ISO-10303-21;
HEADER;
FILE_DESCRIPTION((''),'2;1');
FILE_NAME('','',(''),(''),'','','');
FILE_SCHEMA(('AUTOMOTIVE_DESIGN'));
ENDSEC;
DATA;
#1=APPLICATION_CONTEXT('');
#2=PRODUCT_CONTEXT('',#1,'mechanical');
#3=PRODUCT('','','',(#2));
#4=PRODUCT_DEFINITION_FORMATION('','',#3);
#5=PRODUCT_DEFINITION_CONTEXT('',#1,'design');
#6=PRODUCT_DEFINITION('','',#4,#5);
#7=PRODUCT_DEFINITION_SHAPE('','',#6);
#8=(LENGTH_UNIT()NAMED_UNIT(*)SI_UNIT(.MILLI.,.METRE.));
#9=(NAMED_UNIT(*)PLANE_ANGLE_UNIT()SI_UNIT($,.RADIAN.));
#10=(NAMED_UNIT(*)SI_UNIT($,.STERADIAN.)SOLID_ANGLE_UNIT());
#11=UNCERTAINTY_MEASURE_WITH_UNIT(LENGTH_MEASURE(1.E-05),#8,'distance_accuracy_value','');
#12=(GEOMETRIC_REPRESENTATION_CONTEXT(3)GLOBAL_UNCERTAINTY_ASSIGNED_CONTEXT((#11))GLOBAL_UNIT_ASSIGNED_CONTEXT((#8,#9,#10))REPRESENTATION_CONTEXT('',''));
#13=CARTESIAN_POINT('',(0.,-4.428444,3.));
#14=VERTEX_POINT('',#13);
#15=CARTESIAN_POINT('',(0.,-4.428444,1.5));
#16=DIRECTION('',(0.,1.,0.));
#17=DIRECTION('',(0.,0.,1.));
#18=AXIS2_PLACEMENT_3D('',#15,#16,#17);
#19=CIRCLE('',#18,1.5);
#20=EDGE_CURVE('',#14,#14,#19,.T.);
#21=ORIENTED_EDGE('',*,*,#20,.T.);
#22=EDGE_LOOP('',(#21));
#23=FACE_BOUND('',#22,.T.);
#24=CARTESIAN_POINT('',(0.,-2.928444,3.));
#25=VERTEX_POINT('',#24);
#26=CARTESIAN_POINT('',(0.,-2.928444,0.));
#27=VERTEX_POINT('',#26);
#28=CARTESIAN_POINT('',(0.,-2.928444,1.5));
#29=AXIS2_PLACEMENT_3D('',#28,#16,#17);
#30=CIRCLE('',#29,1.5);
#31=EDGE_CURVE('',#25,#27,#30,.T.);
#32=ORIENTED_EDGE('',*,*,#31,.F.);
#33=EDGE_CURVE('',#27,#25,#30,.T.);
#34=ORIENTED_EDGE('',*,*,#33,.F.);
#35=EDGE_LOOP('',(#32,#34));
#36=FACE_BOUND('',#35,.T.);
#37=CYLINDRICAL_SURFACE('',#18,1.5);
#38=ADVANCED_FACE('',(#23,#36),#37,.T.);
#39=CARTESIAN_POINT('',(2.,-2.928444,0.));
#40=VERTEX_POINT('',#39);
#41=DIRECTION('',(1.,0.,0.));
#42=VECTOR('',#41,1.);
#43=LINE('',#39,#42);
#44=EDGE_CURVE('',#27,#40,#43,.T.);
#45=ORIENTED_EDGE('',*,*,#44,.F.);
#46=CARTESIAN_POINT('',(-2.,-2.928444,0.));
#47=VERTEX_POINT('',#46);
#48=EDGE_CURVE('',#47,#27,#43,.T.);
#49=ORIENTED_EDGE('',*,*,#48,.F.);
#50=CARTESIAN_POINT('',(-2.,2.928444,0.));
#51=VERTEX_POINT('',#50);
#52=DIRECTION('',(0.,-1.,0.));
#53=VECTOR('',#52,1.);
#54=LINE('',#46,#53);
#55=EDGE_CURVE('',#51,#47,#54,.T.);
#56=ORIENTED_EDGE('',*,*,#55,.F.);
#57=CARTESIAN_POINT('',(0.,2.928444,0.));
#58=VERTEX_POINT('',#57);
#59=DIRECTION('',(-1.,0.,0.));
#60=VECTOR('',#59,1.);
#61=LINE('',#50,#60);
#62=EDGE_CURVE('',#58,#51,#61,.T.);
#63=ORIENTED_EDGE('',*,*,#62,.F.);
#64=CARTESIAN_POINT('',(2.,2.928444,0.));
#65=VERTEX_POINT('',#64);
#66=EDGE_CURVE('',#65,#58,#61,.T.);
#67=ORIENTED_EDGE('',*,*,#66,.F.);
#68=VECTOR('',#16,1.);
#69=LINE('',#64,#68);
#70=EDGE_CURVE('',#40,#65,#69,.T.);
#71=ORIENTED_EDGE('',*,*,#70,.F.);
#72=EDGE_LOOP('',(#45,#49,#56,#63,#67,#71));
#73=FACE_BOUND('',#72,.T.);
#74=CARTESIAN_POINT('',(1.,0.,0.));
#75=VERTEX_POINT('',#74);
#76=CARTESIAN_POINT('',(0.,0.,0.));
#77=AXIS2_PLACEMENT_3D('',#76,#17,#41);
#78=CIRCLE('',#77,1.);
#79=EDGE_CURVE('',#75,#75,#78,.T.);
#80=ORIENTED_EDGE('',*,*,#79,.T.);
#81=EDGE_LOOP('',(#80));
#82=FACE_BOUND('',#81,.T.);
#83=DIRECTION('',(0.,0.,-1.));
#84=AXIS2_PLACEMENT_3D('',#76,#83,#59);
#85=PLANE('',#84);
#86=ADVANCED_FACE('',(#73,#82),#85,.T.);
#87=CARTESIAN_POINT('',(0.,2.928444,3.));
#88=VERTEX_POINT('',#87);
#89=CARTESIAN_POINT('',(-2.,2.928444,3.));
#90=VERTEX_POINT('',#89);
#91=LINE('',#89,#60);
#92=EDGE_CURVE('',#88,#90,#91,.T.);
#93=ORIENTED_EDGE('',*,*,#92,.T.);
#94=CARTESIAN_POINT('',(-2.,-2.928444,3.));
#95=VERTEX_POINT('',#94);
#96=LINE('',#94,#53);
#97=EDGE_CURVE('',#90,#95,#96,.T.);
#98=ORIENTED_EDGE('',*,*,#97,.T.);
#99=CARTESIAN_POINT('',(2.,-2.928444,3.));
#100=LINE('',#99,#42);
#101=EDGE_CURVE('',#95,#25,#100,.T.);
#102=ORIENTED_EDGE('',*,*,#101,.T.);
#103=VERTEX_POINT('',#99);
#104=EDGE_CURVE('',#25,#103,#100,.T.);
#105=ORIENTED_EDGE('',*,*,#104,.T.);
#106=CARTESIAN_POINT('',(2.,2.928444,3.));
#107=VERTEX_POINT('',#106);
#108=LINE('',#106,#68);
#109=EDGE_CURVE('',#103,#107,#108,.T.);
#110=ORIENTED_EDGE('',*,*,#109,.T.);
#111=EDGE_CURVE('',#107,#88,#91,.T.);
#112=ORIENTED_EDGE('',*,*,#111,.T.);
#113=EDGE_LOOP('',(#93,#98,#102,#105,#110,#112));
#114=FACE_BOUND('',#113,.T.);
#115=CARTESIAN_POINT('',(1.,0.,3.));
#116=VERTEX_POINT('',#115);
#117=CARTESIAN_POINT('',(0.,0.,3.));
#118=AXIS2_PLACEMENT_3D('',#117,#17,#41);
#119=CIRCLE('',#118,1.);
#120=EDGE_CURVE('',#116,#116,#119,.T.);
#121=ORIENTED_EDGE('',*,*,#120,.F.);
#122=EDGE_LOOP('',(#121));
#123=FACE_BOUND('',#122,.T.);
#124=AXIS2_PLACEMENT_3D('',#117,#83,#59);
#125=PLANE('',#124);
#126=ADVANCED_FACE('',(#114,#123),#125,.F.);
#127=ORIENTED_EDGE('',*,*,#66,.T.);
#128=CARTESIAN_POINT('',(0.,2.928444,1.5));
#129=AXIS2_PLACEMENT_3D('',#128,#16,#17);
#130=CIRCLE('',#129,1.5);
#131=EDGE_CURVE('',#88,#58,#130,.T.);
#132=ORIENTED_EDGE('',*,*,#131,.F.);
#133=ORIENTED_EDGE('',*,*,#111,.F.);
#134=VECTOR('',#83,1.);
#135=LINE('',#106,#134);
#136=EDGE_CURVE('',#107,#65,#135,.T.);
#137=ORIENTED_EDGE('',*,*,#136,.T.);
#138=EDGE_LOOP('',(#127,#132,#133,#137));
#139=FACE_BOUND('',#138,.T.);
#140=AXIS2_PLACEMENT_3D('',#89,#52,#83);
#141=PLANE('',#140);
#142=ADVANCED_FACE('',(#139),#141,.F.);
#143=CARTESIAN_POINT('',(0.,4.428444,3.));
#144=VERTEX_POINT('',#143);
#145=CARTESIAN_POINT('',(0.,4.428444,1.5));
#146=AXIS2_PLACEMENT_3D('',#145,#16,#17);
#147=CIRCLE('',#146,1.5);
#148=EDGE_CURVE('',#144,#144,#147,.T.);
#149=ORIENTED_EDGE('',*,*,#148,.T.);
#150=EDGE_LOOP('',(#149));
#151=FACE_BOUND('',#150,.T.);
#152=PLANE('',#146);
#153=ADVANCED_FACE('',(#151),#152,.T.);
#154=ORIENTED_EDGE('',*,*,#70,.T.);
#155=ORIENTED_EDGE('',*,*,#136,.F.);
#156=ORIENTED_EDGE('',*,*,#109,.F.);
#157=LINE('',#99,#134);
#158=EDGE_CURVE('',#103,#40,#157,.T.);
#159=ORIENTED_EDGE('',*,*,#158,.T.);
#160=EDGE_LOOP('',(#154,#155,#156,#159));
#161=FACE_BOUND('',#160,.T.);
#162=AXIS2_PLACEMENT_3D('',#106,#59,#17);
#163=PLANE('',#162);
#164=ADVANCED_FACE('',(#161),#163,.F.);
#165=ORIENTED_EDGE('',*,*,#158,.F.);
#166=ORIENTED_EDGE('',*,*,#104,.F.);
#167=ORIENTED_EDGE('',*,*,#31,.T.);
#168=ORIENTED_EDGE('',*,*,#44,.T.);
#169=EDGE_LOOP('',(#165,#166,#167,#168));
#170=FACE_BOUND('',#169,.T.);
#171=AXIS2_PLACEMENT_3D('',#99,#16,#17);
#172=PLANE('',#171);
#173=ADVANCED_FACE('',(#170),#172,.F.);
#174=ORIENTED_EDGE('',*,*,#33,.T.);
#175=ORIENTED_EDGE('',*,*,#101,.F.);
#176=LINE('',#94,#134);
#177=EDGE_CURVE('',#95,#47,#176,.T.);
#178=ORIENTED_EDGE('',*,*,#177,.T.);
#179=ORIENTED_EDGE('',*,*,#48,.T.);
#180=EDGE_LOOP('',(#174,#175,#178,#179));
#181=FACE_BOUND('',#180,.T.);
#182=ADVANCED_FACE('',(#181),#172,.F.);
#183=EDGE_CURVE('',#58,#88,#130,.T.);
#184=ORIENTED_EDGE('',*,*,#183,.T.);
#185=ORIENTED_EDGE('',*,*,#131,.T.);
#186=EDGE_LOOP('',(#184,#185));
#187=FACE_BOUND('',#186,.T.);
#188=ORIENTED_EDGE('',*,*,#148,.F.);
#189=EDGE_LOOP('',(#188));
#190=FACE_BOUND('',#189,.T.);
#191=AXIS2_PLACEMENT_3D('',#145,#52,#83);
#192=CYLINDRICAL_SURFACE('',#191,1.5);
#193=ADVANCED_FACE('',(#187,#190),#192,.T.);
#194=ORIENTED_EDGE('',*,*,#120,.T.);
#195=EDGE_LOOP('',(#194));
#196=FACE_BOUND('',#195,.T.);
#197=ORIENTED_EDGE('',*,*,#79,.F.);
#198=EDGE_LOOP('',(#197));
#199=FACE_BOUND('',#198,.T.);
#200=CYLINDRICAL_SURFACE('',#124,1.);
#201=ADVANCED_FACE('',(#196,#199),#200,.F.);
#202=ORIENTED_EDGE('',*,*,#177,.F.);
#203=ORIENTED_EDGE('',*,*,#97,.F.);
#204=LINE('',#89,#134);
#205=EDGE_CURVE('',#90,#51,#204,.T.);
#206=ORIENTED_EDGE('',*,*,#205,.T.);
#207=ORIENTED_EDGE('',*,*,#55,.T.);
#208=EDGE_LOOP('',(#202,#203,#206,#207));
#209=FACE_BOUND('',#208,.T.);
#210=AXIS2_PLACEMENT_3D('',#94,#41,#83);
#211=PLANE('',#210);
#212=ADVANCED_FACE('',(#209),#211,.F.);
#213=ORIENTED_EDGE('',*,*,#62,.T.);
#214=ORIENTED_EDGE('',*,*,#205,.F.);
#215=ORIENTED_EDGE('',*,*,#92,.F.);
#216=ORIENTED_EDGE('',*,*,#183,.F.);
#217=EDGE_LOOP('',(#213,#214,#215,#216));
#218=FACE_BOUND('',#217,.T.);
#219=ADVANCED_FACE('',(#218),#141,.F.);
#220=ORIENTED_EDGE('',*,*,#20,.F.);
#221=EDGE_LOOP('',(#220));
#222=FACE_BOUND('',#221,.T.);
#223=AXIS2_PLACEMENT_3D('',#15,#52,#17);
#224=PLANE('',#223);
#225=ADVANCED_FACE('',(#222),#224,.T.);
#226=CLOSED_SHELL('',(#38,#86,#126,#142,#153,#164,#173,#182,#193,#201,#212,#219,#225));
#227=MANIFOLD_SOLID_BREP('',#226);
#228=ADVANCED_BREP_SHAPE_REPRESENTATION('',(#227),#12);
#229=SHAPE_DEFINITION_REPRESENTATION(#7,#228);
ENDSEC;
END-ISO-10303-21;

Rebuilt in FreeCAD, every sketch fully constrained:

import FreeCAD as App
import Part
import Sketcher

V = App.Vector
Q = App.Units.Quantity

doc = App.newDocument("Part")
body = doc.addObject("PartDesign::Body", "Body")

sketch1 = body.newObject("Sketcher::SketchObject", "Sketch")
sketch1.AttachmentSupport = (doc.getObject("XY_Plane"), [""])
sketch1.MapMode = "FlatFace"
sketch1.addGeometry([
    Part.LineSegment(V(-2, 2.9, 0), V(-2, -2.9, 0)),
    Part.LineSegment(V(-2, -2.9, 0), V(2, -2.9, 0)),
    Part.LineSegment(V(2, -2.9, 0), V(2, 2.9, 0)),
    Part.LineSegment(V(2, 2.9, 0), V(-2, 2.9, 0)),
    Part.Circle(V(0, 0, 0), V(0, 0, 1), 1),
], False)
sketch1.addConstraint([
    Sketcher.Constraint("Coincident", 0, 2, 1, 1),
    Sketcher.Constraint("Coincident", 1, 2, 2, 1),
    Sketcher.Constraint("Coincident", 2, 2, 3, 1),
    Sketcher.Constraint("Coincident", 3, 2, 0, 1),
    Sketcher.Constraint("Vertical", 0),
    Sketcher.Constraint("Horizontal", 1),
    Sketcher.Constraint("Vertical", 2),
    Sketcher.Constraint("Horizontal", 3),
    Sketcher.Constraint("Coincident", 4, 3, -1, 1),
    Sketcher.Constraint("Symmetric", 0, 2, 2, 2, -1, 1),
    Sketcher.Constraint("Diameter", 4, Q("2 mm")),
    Sketcher.Constraint("DistanceX", 1, 1, 1, 2, Q("4 mm")),
    Sketcher.Constraint("DistanceY", 0, 2, 0, 1, Q("5.856889 mm")),
])
pad1 = body.newObject("PartDesign::Pad", "Pad")
pad1.Profile = sketch1
pad1.Length = 3

sketch2 = body.newObject("Sketcher::SketchObject", "Sketch001")
sketch2.AttachmentSupport = (doc.getObject("XZ_Plane"), [""])
sketch2.MapMode = "FlatFace"
sketch2.AttachmentOffset = App.Placement(V(0, 0, -2.928444), App.Rotation())
sketch2.addGeometry(Part.Circle(V(0, 1.5, 0), V(0, 0, 1), 1.5), False)
sketch2.addConstraint([
    Sketcher.Constraint("PointOnObject", 0, 3, -2),
    Sketcher.Constraint("Diameter", 0, Q("3 mm")),
    Sketcher.Constraint("DistanceY", -1, 1, 0, 3, Q("1.5 mm")),
])
pad2 = body.newObject("PartDesign::Pad", "Pad001")
pad2.Profile = sketch2
pad2.Length = 1.5
pad2.Reversed = True
doc.recompute()

mirrored = body.newObject("PartDesign::Mirrored", "Mirrored")
mirrored.Originals = [pad2]
mirrored.MirrorPlane = (doc.getObject("XZ_Plane"), [""])
body.Tip = mirrored

doc.recompute()
